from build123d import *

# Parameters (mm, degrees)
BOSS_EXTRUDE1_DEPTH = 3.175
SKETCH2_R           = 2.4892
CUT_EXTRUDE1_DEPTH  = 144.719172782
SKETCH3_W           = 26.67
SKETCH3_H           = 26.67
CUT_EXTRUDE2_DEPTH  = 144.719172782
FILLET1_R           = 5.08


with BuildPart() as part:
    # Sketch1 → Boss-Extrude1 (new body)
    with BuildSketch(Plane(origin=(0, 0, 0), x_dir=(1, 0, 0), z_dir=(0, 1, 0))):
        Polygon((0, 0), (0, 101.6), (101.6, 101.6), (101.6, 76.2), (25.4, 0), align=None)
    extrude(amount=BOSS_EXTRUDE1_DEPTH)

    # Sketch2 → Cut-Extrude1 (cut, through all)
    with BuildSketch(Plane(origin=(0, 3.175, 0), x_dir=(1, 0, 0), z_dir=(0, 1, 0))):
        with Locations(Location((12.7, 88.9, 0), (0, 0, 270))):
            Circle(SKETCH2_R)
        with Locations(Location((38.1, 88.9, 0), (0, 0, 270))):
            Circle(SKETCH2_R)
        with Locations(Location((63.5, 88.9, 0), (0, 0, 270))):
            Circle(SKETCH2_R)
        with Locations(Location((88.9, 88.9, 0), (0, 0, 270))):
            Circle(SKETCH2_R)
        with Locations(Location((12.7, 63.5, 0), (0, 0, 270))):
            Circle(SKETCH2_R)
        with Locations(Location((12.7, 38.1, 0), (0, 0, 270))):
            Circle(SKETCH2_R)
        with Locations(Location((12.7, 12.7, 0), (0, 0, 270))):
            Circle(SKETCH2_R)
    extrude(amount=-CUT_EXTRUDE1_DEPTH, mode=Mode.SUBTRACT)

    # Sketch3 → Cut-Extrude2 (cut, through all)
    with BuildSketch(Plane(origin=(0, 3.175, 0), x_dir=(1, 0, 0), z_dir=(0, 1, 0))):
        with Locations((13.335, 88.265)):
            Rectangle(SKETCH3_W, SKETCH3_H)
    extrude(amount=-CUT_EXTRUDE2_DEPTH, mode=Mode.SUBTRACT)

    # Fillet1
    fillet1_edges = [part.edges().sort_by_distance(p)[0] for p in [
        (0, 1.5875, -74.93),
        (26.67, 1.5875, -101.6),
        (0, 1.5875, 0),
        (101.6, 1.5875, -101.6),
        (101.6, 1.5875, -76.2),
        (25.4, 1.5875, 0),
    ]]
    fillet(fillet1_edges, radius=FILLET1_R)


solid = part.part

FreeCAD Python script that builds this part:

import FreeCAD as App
import Part
import Sketcher
from FreeCAD import Vector
Q = App.Units.Quantity


def edges_at(feature, points):
    """Names of the edges that pass closest to the given points."""
    edges = feature.Shape.Edges
    near = lambda p: min(range(len(edges)), key=lambda i: edges[i].distToShape(Part.Vertex(*p))[0])
    return sorted({f"Edge{near(p) + 1}" for p in points})


def add_polygon(sketch, points):
    """Adds a closed chain of lines whose ends are joined by coincident constraints."""
    first, n = sketch.GeometryCount, len(points)
    for a, b in zip(points, points[1:] + points[:1]):
        sketch.addGeometry(Part.LineSegment(App.Vector(*a, 0), App.Vector(*b, 0)), False)
    for i in range(n):
        sketch.addConstraint(Sketcher.Constraint("Coincident", first + i, 2, first + (i + 1) % n, 1))

doc = App.newDocument("Part")
body = doc.addObject("PartDesign::Body", "Body")

sketch1 = body.newObject("Sketcher::SketchObject", "Sketch")
sketch1.AttachmentSupport = (doc.getObject("XZ_Plane"), [""])
sketch1.MapMode = "FlatFace"
add_polygon(sketch1, [(0, -101.6), (0, 0), (25.4, 0), (101.6, -76.2), (101.6, -101.6)])
sketch1.addConstraint([
    Sketcher.Constraint("Vertical", 0),
    Sketcher.Constraint("Horizontal", 1),
    Sketcher.Constraint("Vertical", 3),
    Sketcher.Constraint("Horizontal", 4),
    Sketcher.Constraint("Coincident", 0, 2, -1, 1),
    Sketcher.Constraint("Equal", 4, 0),
    Sketcher.Constraint("Equal", 1, 3),
    Sketcher.Constraint("DistanceX", 1, 1, 1, 2, Q("1 in")),
    Sketcher.Constraint("DistanceX", 4, 2, 4, 1, Q("4 in")),
])
pad1 = body.newObject("PartDesign::Pad", "Pad")
pad1.Profile = sketch1
pad1.Length = Q("0.125 in")
pad1.Reversed = True

sketch2 = body.newObject("Sketcher::SketchObject", "Sketch001")
sketch2.AttachmentSupport = (doc.getObject("XZ_Plane"), [""])
sketch2.MapMode = "FlatFace"
sketch2.AttachmentOffset = App.Placement(Vector(0, 0, -0.125 * 25.4), App.Rotation())
sketch2.addGeometry([
    Part.Circle(Vector(12.7, -88.9, 0), Vector(0, 0, 1), 2.4892),
    Part.Circle(Vector(38.1, -88.9, 0), Vector(0, 0, 1), 2.4892),
    Part.Circle(Vector(63.5, -88.9, 0), Vector(0, 0, 1), 2.4892),
    Part.Circle(Vector(88.9, -88.9, 0), Vector(0, 0, 1), 2.4892),
    Part.Circle(Vector(12.7, -63.5, 0), Vector(0, 0, 1), 2.4892),
    Part.Circle(Vector(12.7, -38.1, 0), Vector(0, 0, 1), 2.4892),
    Part.Circle(Vector(12.7, -12.7, 0), Vector(0, 0, 1), 2.4892),
], False)
sketch2.addConstraint([
    Sketcher.Constraint("Equal", 0, 1),
    Sketcher.Constraint("Equal", 1, 2),
    Sketcher.Constraint("Equal", 2, 3),
    Sketcher.Constraint("Equal", 3, 4),
    Sketcher.Constraint("Equal", 4, 5),
    Sketcher.Constraint("Equal", 5, 6),
    Sketcher.Constraint("Horizontal", 0, 3, 1, 3),
    Sketcher.Constraint("Horizontal", 1, 3, 2, 3),
    Sketcher.Constraint("Horizontal", 2, 3, 3, 3),
    Sketcher.Constraint("Vertical", 0, 3, 4, 3),
    Sketcher.Constraint("Vertical", 4, 3, 5, 3),
    Sketcher.Constraint("Vertical", 5, 3, 6, 3),
    Sketcher.Constraint("Diameter", 0, Q("0.196 in")),
    Sketcher.Constraint("DistanceX", 0, 3, 1, 3, Q("1 in")),
    Sketcher.Constraint("DistanceX", 1, 3, 2, 3, Q("1 in")),
    Sketcher.Constraint("DistanceX", 2, 3, 3, 3, Q("1 in")),
    Sketcher.Constraint("DistanceY", 0, 3, 4, 3, Q("1 in")),
    Sketcher.Constraint("DistanceY", 4, 3, 5, 3, Q("1 in")),
    Sketcher.Constraint("DistanceY", 5, 3, 6, 3, Q("1 in")),
    Sketcher.Constraint("DistanceX", -1, 1, 0, 3, Q("0.5 in")),
    Sketcher.Constraint("DistanceY", 0, 3, -1, 1, Q("3.5 in")),
])
pocket1 = body.newObject("PartDesign::Pocket", "Pocket")
pocket1.Profile = sketch2
pocket1.Type = "ThroughAll"
pocket1.Reversed = True

sketch3 = body.newObject("Sketcher::SketchObject", "Sketch002")
sketch3.AttachmentSupport = (doc.getObject("XZ_Plane"), [""])
sketch3.MapMode = "FlatFace"
sketch3.AttachmentOffset = App.Placement(Vector(0, 0, -0.125 * 25.4), App.Rotation())
add_polygon(sketch3, [(0, -101.6), (0, -74.93), (26.67, -74.93), (26.67, -101.6)])
sketch3.addConstraint([
    Sketcher.Constraint("Vertical", 0),
    Sketcher.Constraint("Horizontal", 1),
    Sketcher.Constraint("Vertical", 2),
    Sketcher.Constraint("Horizontal", 3),
    Sketcher.Constraint("PointOnObject", 0, 2, -2),
    Sketcher.Constraint("Equal", 3, 0),
    Sketcher.Constraint("DistanceY", 2, 2, -1, 1, Q("4 in")),
    Sketcher.Constraint("DistanceX", 1, 1, 1, 2, Q("1.05 in")),
])
pocket2 = body.newObject("PartDesign::Pocket", "Pocket001")
pocket2.Profile = sketch3
pocket2.Type = "ThroughAll"
pocket2.Reversed = True
doc.recompute()

fillet = body.newObject("PartDesign::Fillet", "Fillet")
fillet.Base = (pocket2, edges_at(pocket2, [
    (0, 1.587, -74.93),
    (26.67, 1.587, -101.6),
    (0, 1.587, 0),
    (101.6, 1.587, -101.6),
    (101.6, 1.587, -76.2),
    (25.4, 1.587, 0),
]))
fillet.Radius = Q("0.2 in")

doc.recompute()
